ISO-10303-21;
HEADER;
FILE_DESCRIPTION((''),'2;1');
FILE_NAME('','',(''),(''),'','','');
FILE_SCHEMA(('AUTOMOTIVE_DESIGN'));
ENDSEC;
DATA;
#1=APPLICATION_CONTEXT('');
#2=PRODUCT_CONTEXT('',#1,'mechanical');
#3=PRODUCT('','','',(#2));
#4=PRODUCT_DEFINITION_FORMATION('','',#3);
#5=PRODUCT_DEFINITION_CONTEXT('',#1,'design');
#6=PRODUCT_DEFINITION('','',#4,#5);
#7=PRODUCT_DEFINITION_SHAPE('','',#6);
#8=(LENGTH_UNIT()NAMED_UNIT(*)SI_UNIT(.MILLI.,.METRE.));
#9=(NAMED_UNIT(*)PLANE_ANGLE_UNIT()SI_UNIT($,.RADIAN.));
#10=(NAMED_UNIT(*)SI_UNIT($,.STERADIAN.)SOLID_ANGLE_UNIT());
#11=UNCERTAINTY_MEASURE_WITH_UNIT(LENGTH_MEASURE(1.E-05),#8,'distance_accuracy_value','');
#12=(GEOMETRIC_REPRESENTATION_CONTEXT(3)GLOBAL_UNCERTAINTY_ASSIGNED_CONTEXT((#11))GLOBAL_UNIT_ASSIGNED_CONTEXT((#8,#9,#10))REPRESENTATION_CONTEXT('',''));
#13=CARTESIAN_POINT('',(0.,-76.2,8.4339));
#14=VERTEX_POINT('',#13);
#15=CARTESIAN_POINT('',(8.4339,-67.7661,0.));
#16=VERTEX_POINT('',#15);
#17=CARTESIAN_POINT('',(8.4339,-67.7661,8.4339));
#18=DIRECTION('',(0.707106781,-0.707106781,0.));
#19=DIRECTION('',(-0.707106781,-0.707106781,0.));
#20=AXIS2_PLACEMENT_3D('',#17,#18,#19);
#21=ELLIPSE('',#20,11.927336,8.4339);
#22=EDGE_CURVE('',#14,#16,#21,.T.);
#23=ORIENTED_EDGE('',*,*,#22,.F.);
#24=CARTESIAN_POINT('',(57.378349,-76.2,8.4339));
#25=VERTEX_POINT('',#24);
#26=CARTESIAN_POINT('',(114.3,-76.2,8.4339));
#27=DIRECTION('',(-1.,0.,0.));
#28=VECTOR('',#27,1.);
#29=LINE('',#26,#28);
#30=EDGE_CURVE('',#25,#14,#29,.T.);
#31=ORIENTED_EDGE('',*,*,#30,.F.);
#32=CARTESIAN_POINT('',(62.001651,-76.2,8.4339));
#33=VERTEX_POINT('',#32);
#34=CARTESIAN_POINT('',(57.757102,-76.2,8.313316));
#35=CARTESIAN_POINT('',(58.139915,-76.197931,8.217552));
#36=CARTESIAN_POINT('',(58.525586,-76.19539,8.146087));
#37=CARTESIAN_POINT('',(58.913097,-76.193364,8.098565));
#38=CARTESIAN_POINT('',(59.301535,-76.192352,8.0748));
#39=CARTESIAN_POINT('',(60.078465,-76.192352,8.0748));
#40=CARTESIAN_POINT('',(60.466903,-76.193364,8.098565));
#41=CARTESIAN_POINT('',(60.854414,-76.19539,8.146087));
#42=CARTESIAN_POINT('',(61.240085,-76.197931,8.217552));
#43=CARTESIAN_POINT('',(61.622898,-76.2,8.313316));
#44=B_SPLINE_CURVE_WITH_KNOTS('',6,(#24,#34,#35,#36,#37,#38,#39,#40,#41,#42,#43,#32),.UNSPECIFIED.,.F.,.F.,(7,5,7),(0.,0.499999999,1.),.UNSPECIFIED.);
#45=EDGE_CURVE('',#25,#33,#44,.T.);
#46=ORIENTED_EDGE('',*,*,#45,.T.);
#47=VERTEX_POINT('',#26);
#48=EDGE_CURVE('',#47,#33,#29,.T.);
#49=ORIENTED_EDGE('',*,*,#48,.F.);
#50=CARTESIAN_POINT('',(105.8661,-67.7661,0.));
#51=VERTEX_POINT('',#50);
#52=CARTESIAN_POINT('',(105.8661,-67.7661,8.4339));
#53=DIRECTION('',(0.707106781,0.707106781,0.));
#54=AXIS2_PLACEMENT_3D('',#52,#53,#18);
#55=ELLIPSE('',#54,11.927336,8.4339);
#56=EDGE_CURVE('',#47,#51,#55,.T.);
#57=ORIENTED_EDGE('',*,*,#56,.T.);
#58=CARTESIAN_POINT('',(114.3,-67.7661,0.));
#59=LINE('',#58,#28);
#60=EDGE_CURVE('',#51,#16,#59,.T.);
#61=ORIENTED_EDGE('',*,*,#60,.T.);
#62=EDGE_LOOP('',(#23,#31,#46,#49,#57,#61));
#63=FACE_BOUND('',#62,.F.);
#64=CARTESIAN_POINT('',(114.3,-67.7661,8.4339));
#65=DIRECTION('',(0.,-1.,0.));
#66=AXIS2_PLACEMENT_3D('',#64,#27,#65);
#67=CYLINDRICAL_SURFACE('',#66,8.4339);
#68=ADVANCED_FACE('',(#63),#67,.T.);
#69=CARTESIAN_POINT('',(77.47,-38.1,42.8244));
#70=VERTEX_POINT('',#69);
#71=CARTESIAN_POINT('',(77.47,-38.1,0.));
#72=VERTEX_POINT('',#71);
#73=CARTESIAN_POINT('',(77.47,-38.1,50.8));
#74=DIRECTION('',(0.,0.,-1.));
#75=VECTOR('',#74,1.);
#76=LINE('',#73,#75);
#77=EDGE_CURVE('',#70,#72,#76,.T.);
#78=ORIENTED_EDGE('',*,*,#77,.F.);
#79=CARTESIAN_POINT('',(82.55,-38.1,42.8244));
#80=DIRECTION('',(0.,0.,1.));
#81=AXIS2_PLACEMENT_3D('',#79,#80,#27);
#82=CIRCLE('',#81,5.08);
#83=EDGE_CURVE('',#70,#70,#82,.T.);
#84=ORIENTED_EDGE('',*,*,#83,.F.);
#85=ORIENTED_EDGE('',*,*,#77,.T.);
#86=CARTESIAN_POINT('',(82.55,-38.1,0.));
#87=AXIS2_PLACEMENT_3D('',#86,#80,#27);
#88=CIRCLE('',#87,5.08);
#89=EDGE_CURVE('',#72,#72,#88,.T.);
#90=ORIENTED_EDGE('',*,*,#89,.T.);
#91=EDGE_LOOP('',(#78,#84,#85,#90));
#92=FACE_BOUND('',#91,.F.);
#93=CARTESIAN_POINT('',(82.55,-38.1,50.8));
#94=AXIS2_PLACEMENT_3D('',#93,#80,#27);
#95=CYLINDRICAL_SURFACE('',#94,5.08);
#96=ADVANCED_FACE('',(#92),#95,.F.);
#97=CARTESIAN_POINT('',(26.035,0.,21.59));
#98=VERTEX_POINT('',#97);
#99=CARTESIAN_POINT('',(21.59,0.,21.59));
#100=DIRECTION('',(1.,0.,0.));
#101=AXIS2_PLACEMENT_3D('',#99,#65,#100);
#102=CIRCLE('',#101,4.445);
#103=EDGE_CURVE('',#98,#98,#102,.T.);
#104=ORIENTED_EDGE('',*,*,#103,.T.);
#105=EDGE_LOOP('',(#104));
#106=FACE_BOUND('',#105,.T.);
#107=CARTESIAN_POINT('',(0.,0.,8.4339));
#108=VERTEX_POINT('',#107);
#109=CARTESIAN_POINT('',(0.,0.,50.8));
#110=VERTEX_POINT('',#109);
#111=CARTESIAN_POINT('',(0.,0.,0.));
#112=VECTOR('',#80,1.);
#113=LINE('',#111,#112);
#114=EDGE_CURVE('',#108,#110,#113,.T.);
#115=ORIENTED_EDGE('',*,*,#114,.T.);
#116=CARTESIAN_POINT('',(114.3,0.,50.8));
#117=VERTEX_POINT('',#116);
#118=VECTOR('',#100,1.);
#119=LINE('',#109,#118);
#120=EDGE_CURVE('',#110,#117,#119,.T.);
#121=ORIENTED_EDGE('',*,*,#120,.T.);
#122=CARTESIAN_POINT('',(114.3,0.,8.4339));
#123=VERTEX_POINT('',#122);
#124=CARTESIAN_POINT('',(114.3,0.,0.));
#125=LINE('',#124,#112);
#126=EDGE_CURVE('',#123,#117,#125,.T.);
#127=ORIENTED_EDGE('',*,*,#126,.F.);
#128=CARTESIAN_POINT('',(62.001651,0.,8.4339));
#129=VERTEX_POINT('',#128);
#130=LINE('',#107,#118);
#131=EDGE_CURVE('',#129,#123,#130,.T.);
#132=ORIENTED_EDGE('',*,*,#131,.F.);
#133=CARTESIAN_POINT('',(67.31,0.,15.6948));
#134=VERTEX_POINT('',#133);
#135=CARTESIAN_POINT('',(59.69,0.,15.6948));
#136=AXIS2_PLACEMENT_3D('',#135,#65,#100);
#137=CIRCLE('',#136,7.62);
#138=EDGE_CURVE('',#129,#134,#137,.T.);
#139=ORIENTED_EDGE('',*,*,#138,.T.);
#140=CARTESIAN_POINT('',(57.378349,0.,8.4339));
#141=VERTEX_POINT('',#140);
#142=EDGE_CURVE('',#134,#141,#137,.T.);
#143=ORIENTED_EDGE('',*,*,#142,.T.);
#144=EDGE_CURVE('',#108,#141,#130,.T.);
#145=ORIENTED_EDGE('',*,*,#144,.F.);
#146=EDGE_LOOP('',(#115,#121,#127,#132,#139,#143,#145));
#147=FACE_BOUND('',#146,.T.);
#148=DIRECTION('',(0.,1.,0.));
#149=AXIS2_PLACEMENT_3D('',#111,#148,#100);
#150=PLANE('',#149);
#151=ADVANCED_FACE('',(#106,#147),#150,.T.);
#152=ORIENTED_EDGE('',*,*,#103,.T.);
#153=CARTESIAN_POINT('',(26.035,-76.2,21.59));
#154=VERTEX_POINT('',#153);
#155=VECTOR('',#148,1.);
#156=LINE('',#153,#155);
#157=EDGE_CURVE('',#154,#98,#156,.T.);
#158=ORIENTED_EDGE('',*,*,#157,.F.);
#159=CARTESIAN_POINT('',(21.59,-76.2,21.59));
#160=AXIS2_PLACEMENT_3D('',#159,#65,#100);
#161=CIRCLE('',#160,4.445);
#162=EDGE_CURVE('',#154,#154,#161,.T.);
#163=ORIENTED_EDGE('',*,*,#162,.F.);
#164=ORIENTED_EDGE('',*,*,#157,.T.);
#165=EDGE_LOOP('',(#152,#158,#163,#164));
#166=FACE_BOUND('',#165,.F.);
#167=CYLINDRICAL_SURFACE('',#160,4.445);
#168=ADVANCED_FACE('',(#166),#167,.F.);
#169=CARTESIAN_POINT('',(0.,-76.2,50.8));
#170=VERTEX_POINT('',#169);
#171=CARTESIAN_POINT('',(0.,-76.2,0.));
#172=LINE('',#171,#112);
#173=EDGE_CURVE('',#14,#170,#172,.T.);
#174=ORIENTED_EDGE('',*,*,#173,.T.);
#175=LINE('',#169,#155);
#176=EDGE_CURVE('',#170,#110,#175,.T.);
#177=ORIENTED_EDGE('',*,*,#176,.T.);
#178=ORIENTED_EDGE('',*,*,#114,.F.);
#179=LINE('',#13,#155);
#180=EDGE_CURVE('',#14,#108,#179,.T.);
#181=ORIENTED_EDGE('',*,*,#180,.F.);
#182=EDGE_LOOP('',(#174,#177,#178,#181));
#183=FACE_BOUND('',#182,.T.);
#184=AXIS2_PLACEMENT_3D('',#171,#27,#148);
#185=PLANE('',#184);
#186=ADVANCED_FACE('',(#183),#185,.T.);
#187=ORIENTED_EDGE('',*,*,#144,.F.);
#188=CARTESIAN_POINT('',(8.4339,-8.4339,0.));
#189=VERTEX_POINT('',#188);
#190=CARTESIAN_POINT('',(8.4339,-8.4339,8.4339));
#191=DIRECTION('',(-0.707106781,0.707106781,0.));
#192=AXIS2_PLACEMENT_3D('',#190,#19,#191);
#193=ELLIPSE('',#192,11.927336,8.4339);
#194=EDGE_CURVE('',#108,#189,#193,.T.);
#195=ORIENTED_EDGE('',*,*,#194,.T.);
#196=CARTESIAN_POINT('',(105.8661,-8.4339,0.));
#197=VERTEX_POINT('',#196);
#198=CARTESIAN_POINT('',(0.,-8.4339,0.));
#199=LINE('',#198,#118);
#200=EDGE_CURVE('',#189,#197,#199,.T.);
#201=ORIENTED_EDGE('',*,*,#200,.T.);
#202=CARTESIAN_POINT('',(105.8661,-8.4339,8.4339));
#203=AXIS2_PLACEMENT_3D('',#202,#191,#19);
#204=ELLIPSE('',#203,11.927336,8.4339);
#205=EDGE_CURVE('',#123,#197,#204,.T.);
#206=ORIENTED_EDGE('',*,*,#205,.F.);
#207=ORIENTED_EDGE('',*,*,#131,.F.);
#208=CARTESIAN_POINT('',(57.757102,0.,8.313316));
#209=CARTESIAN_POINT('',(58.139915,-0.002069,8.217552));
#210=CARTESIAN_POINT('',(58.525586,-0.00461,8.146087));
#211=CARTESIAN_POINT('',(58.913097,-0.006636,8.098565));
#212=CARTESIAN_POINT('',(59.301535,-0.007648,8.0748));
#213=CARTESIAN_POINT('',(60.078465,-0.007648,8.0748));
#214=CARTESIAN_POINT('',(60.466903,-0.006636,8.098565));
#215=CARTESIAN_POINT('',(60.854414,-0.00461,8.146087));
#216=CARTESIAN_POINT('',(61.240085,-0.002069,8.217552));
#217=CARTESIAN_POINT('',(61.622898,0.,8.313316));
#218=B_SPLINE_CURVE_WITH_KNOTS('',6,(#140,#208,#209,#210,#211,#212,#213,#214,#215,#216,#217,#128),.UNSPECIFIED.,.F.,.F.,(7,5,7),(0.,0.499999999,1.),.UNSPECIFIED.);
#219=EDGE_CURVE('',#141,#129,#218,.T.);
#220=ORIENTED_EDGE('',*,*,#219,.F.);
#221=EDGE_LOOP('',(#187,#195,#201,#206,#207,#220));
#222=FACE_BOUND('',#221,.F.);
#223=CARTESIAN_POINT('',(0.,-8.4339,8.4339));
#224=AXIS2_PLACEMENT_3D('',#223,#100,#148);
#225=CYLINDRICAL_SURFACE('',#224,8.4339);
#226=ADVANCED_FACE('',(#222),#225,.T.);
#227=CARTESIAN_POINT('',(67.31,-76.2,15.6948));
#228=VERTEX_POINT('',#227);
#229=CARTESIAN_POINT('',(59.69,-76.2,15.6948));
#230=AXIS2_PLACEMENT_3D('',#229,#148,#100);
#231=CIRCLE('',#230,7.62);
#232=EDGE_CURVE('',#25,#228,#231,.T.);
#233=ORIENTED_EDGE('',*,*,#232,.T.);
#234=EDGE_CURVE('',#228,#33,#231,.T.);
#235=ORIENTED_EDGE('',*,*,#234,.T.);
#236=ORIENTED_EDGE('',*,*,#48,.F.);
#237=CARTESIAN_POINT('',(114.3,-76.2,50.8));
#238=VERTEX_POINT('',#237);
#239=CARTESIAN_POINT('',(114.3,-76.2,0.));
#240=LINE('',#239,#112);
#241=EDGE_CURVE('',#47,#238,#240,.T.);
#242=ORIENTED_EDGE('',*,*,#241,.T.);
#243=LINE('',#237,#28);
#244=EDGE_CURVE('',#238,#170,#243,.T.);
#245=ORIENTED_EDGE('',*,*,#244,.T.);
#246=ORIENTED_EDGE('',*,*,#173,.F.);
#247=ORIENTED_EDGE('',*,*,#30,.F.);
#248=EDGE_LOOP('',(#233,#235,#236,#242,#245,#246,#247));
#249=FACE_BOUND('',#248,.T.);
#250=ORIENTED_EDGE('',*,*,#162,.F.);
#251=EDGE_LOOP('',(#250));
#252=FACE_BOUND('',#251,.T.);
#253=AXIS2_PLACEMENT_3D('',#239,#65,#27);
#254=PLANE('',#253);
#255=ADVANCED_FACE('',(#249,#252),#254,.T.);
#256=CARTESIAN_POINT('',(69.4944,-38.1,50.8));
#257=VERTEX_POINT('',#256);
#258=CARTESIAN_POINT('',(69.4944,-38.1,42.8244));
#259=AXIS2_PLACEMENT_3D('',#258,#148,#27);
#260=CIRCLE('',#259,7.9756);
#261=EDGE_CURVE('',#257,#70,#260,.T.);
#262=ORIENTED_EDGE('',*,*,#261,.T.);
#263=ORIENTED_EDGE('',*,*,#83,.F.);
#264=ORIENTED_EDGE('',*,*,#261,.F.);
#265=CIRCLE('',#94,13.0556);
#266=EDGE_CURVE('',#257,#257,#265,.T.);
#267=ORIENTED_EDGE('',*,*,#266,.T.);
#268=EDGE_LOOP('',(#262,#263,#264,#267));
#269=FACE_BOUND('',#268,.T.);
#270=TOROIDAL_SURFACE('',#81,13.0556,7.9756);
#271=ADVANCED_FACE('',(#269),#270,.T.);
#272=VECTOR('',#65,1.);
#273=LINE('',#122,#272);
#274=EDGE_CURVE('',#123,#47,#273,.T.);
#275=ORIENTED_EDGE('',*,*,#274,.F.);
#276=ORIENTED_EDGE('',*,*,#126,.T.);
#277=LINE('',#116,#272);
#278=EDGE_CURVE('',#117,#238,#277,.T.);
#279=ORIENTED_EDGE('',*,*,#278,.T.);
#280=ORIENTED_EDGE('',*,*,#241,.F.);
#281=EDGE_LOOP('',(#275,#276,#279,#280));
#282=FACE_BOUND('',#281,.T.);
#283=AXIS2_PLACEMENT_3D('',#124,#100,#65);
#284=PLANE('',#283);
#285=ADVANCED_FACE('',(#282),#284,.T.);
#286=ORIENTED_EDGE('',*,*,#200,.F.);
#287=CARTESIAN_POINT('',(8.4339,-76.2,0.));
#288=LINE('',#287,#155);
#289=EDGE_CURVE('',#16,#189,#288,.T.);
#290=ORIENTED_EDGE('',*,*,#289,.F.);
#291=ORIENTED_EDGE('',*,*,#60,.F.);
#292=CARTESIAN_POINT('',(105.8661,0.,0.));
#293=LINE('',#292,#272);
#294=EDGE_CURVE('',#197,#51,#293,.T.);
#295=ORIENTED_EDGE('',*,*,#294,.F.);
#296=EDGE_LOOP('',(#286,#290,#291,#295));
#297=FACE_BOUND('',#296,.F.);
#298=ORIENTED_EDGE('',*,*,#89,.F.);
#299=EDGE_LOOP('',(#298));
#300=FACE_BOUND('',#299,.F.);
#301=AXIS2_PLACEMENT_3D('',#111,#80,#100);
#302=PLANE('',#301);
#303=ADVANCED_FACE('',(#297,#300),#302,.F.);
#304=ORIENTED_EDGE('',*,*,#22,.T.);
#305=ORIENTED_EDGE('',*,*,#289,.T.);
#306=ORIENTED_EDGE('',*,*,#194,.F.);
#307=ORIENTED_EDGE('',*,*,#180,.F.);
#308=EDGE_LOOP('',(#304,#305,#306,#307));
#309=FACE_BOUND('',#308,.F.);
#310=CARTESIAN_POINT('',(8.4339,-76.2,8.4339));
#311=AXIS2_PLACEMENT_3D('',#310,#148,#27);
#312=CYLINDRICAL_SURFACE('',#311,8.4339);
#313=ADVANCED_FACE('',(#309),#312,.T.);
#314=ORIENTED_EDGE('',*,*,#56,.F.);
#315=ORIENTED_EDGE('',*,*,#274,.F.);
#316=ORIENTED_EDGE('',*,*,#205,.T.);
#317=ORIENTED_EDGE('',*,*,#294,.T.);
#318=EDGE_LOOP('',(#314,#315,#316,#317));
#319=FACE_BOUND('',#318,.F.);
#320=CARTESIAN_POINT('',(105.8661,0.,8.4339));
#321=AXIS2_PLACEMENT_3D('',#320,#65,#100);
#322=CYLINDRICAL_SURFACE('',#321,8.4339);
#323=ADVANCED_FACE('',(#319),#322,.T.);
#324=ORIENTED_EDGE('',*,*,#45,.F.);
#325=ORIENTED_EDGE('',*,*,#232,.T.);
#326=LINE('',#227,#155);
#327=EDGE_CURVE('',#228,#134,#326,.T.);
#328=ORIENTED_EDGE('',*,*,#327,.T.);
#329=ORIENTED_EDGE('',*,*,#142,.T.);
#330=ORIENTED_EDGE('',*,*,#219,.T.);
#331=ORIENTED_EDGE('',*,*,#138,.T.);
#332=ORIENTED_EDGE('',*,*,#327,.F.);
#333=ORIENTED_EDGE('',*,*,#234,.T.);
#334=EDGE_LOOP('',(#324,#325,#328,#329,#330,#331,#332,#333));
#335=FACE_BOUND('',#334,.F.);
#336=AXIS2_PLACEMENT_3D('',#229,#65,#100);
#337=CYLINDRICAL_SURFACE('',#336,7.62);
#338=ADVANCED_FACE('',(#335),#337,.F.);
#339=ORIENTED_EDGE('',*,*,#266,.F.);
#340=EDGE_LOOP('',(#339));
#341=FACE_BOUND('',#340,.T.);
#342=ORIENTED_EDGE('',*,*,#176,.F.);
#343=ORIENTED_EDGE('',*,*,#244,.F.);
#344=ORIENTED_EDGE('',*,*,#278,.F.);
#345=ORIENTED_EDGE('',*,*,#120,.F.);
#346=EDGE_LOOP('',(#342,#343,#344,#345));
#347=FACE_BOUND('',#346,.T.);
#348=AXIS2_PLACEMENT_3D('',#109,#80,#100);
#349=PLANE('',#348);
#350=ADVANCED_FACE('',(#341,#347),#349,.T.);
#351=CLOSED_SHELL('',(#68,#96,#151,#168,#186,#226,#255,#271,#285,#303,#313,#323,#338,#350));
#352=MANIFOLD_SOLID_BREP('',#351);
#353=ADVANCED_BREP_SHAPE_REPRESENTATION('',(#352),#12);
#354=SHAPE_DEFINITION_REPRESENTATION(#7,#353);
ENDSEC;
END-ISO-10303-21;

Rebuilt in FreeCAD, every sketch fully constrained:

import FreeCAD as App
import Part
import Sketcher

V = App.Vector
Q = App.Units.Quantity


def edges_at(feature, points):
    """Names of the edges that pass closest to the given points."""
    edges = feature.Shape.Edges
    near = lambda p: min(range(len(edges)), key=lambda i: edges[i].distToShape(Part.Vertex(*p))[0])
    return sorted({f"Edge{near(p) + 1}" for p in points})

doc = App.newDocument("Part")
params = doc.addObject("Spreadsheet::Sheet", "Params")
for row, (alias, value) in enumerate([
    ("sketch1_height", "3 in"),
    ("sketch1_width", "4.5 in"),
    ("pad1_length", "2 in"),
    ("sketch2_diameter", "0.4 in"),
    ("pocket1_length", "2 in"),
    ("fillet_radius", "0.314 in"),
    ("fillet2_radius", "8.4339 mm"),
    ("sketch3_diameter", "0.6 in"),
    ("pocket2_length", "3 in"),
    ("sketch4_diameter", "0.35 in"),
    ("pocket3_length", "3 in"),
], start=1):
    params.set(f"A{row}", alias)
    params.set(f"B{row}", "=" + value)
    params.setAlias(f"B{row}", alias)

body = doc.addObject("PartDesign::Body", "Body")

# Sketch on XY plane
sketch1 = body.newObject("Sketcher::SketchObject", "Sketch")
sketch1.AttachmentSupport = (doc.getObject("XY_Plane"), [""])
sketch1.MapMode = "FlatFace"
sketch1.addGeometry([
    Part.LineSegment(V(114.3, 0, 0), V(0, 0, 0)),
    Part.LineSegment(V(0, 0, 0), V(0, -76.2, 0)),
    Part.LineSegment(V(0, -76.2, 0), V(114.3, -76.2, 0)),
    Part.LineSegment(V(114.3, -76.2, 0), V(114.3, 0, 0)),
], False)
sketch1.addConstraint([
    Sketcher.Constraint("Coincident", 0, 2, 1, 1),
    Sketcher.Constraint("Coincident", 1, 2, 2, 1),
    Sketcher.Constraint("Coincident", 2, 2, 3, 1),
    Sketcher.Constraint("Coincident", 3, 2, 0, 1),
    Sketcher.Constraint("Horizontal", 0),
    Sketcher.Constraint("Vertical", 1),
    Sketcher.Constraint("Horizontal", 2),
    Sketcher.Constraint("Vertical", 3),
    Sketcher.Constraint("Coincident", 0, 2, -1, 1),
    Sketcher.Constraint("DistanceY", 1, 2, 1, 1, Q("3 in")),
    Sketcher.Constraint("DistanceX", 0, 2, 0, 1, Q("4.5 in")),
])
sketch1.setExpression("Constraints[9]", "Params.sketch1_height")
sketch1.setExpression("Constraints[10]", "Params.sketch1_width")
pad1 = body.newObject("PartDesign::Pad", "Pad")
pad1.Profile = sketch1
pad1.setExpression("Length", "Params.pad1_length")

# Sketch on XY plane
sketch2 = body.newObject("Sketcher::SketchObject", "Sketch001")
sketch2.AttachmentSupport = (doc.getObject("XY_Plane"), [""])
sketch2.MapMode = "FlatFace"
sketch2.AttachmentOffset = App.Placement(V(0, 0, 2 * 25.4), App.Rotation())
sketch2.addGeometry(Part.Circle(V(82.55, -38.1, 0), V(0, 0, 1), 5.08), False)
sketch2.addConstraint([
    Sketcher.Constraint("Diameter", 0, Q("0.4 in")),
    Sketcher.Constraint("DistanceY", 0, 3, -1, 1, Q("1.5 in")),
    Sketcher.Constraint("DistanceX", -1, 1, 0, 3, Q("3.25 in")),
])
sketch2.setExpression("Constraints[0]", "Params.sketch2_diameter")
pocket1 = body.newObject("PartDesign::Pocket", "Pocket")
pocket1.Profile = sketch2
pocket1.setExpression("Length", "Params.pocket1_length")
doc.recompute()

fillet = body.newObject("PartDesign::Fillet", "Fillet")
fillet.Base = (pocket1, edges_at(pocket1, [(87.286, -39.937, 50.8)]))
fillet.setExpression("Radius", "Params.fillet_radius")
doc.recompute()

fillet2 = body.newObject("PartDesign::Fillet", "Fillet001")
fillet2.Base = (fillet, edges_at(fillet, [
    (114.3, -38.1, 0),
    (57.15, -76.2, 0),
    (0, -38.1, 0),
    (57.15, 0, 0),
]))
fillet2.setExpression("Radius", "Params.fillet2_radius")

# Sketch on XZ plane
sketch3 = body.newObject("Sketcher::SketchObject", "Sketch002")
sketch3.AttachmentSupport = (doc.getObject("XZ_Plane"), [""])
sketch3.MapMode = "FlatFace"
sketch3.AttachmentOffset = App.Placement(V(0, 0, 3 * 25.4), App.Rotation())
sketch3.addGeometry(Part.Circle(V(59.69, 15.6948, 0), V(0, 0, 1), 7.62), False)
sketch3.addConstraint([
    Sketcher.Constraint("Diameter", 0, Q("0.6 in")),
    Sketcher.Constraint("DistanceX", -1, 1, 0, 3, Q("2.35 in")),
    Sketcher.Constraint("DistanceY", -1, 1, 0, 3, Q("0.6179 in")),
])
sketch3.setExpression("Constraints[0]", "Params.sketch3_diameter")
pocket2 = body.newObject("PartDesign::Pocket", "Pocket001")
pocket2.Profile = sketch3
pocket2.setExpression("Length", "Params.pocket2_length")

# Sketch on XZ plane
sketch4 = body.newObject("Sketcher::SketchObject", "Sketch003")
sketch4.AttachmentSupport = (doc.getObject("XZ_Plane"), [""])
sketch4.MapMode = "FlatFace"
sketch4.AttachmentOffset = App.Placement(V(0, 0, 3 * 25.4), App.Rotation())
sketch4.addGeometry(Part.Circle(V(21.59, 21.59, 0), V(0, 0, 1), 4.445), False)
sketch4.addConstraint([
    Sketcher.Constraint("Diameter", 0, Q("0.35 in")),
    Sketcher.Constraint("DistanceX", -1, 1, 0, 3, Q("0.85 in")),
    Sketcher.Constraint("DistanceY", -1, 1, 0, 3, Q("0.85 in")),
])
sketch4.setExpression("Constraints[0]", "Params.sketch4_diameter")
pocket3 = body.newObject("PartDesign::Pocket", "Pocket002")
pocket3.Profile = sketch4
pocket3.setExpression("Length", "Params.pocket3_length")

doc.recompute()
